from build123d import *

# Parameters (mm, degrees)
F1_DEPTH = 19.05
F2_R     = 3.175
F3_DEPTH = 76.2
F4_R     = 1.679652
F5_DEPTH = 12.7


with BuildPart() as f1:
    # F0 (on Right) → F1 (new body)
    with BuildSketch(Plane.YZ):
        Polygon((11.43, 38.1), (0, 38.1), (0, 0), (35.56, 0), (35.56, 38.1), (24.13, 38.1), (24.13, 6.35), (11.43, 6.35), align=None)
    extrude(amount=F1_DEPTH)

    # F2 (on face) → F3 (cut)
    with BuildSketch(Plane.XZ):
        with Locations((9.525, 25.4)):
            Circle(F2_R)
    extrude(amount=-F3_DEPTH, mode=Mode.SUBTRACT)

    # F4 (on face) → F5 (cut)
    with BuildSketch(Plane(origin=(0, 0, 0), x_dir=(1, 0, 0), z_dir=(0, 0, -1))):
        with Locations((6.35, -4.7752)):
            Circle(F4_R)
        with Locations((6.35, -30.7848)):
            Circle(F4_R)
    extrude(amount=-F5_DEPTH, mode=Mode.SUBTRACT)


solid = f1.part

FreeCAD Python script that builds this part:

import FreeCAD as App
import Part
import Sketcher

V = App.Vector
Q = App.Units.Quantity


def add_polygon(sketch, points):
    """Adds a closed chain of lines whose ends are joined by coincident constraints."""
    first, n = sketch.GeometryCount, len(points)
    for a, b in zip(points, points[1:] + points[:1]):
        sketch.addGeometry(Part.LineSegment(App.Vector(*a, 0), App.Vector(*b, 0)), False)
    for i in range(n):
        sketch.addConstraint(Sketcher.Constraint("Coincident", first + i, 2, first + (i + 1) % n, 1))

doc = App.newDocument("Part")
body = doc.addObject("PartDesign::Body", "Body")

# Sketch on YZ plane
sketch1 = body.newObject("Sketcher::SketchObject", "Sketch")
sketch1.AttachmentSupport = (doc.getObject("YZ_Plane"), [""])
sketch1.MapMode = "FlatFace"
add_polygon(sketch1, [(11.43, 38.1), (0, 38.1), (0, 0), (35.56, 0), (35.56, 38.1), (24.13, 38.1), (24.13, 6.35), (11.43, 6.35)])  # lines 0-7
sketch1.addConstraint([
    Sketcher.Constraint("Horizontal", 0),
    Sketcher.Constraint("Vertical", 1),
    Sketcher.Constraint("Horizontal", 2),
    Sketcher.Constraint("Vertical", 3),
    Sketcher.Constraint("Horizontal", 4),
    Sketcher.Constraint("Vertical", 5),
    Sketcher.Constraint("Horizontal", 6),
    Sketcher.Constraint("Vertical", 7),
    Sketcher.Constraint("Coincident", 1, 2, -1, 1),
    Sketcher.Constraint("Horizontal", 0, 2, 3, 2),
    Sketcher.Constraint("Equal", 0, 4),
    Sketcher.Constraint("DistanceX", 2, 1, 2, 2, Q("1.4 in")),
    Sketcher.Constraint("DistanceX", 6, 2, 6, 1, Q("0.5 in")),
    Sketcher.Constraint("DistanceY", 1, 2, 1, 1, Q("1.5 in")),
    Sketcher.Constraint("DistanceY", 5, 2, 5, 1, Q("1.25 in")),
])
pad1 = body.newObject("PartDesign::Pad", "Pad")
pad1.Profile = sketch1
pad1.Length = Q("0.75 in")

# Sketch on XZ plane
sketch2 = body.newObject("Sketcher::SketchObject", "Sketch001")
sketch2.AttachmentSupport = (doc.getObject("XZ_Plane"), [""])
sketch2.MapMode = "FlatFace"
sketch2.addGeometry(Part.Circle(V(9.525, 25.4, 0), V(0, 0, 1), 3.175), False)
sketch2.addConstraint([
    Sketcher.Constraint("Diameter", 0, Q("0.25 in")),
    Sketcher.Constraint("DistanceY", -1, 1, 0, 3, Q("1 in")),
    Sketcher.Constraint("DistanceX", -1, 1, 0, 3, Q("0.375 in")),
])
pocket1 = body.newObject("PartDesign::Pocket", "Pocket")
pocket1.Profile = sketch2
pocket1.Length = Q("3 in")

# Sketch on XY plane
sketch3 = body.newObject("Sketcher::SketchObject", "Sketch002")
sketch3.AttachmentSupport = (doc.getObject("XY_Plane"), [""])
sketch3.MapMode = "FlatFace"
sketch3.addGeometry([
    Part.Circle(V(6.35, 4.7752, 0), V(0, 0, 1), 1.679652),
    Part.Circle(V(6.35, 30.7848, 0), V(0, 0, 1), 1.679652),
], False)
sketch3.addConstraint([
    Sketcher.Constraint("Equal", 0, 1),
    Sketcher.Constraint("Vertical", 0, 3, 1, 3),
    Sketcher.Constraint("DistanceX", -1, 1, 0, 3, Q("0.25 in")),
    Sketcher.Constraint("DistanceY", -1, 1, 0, 3, Q("0.188 in")),
    Sketcher.Constraint("DistanceY", -1, 1, 1, 3, Q("1.212 in")),
    Sketcher.Constraint("Diameter", 0, Q("3.359304 mm")),
])
pocket2 = body.newObject("PartDesign::Pocket", "Pocket001")
pocket2.Profile = sketch3
pocket2.Length = Q("0.5 in")
pocket2.Reversed = True

doc.recompute()
